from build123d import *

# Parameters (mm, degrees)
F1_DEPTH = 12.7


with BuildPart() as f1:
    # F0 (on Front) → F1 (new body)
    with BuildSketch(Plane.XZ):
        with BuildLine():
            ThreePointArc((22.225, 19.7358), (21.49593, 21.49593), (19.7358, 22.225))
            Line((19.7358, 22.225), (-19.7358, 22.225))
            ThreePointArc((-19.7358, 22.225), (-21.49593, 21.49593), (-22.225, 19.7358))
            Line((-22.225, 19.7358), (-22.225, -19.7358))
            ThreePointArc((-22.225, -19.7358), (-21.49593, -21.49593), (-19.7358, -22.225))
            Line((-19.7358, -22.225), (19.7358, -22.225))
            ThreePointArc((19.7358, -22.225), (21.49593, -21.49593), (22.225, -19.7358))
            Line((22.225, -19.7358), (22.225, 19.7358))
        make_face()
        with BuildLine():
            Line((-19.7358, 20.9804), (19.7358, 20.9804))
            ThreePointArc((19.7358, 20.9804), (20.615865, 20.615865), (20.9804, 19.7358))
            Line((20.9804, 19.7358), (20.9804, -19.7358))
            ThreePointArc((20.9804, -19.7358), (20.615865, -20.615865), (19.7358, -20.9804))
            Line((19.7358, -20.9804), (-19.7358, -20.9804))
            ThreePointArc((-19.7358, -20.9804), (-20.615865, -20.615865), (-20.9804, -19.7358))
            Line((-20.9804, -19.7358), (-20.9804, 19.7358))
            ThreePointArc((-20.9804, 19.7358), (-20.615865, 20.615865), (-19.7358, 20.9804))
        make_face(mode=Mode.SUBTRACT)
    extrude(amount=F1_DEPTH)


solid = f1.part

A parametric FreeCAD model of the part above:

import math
import FreeCAD as App
import Part
import Sketcher
Q = App.Units.Quantity

doc = App.newDocument("Part")
body = doc.addObject("PartDesign::Body", "Body")

# Sketch on XZ plane
sketch1 = body.newObject("Sketcher::SketchObject", "Sketch")
sketch1.AttachmentSupport = (doc.getObject("XZ_Plane"), [""])
sketch1.MapMode = "FlatFace"
sketch1.addGeometry([
    Part.ArcOfCircle(Part.Circle(App.Vector(19.7, 19.7, 0), App.Vector(0, 0, 1), 2.5), math.radians(0), math.radians(90)),  # 0
    Part.LineSegment(App.Vector(19.7, 22.2, 0), App.Vector(-19.7, 22.2, 0)),  # 1
    Part.ArcOfCircle(Part.Circle(App.Vector(-19.7, 19.7, 0), App.Vector(0, 0, 1), 2.5), math.radians(90), math.radians(180)),  # 2
    Part.LineSegment(App.Vector(-22.2, 19.7, 0), App.Vector(-22.2, -19.7, 0)),  # 3
    Part.ArcOfCircle(Part.Circle(App.Vector(-19.7, -19.7, 0), App.Vector(0, 0, 1), 2.5), math.radians(-180), math.radians(-90)),  # 4
    Part.LineSegment(App.Vector(-19.7, -22.2, 0), App.Vector(19.7, -22.2, 0)),  # 5
    Part.ArcOfCircle(Part.Circle(App.Vector(19.7, -19.7, 0), App.Vector(0, 0, 1), 2.5), math.radians(-90), math.radians(0)),  # 6
    Part.LineSegment(App.Vector(22.2, -19.7, 0), App.Vector(22.2, 19.7, 0)),  # 7
    Part.ArcOfCircle(Part.Circle(App.Vector(-19.7, 19.7, 0), App.Vector(0, 0, 1), 1.2), math.radians(90), math.radians(180)),  # 8
    Part.LineSegment(App.Vector(-19.7, 21, 0), App.Vector(19.7, 21, 0)),  # 9
    Part.ArcOfCircle(Part.Circle(App.Vector(19.7, 19.7, 0), App.Vector(0, 0, 1), 1.2), math.radians(0), math.radians(90)),  # 10
    Part.LineSegment(App.Vector(21, 19.7, 0), App.Vector(21, -19.7, 0)),  # 11
    Part.ArcOfCircle(Part.Circle(App.Vector(19.7, -19.7, 0), App.Vector(0, 0, 1), 1.2), math.radians(-90), math.radians(0)),  # 12
    Part.LineSegment(App.Vector(19.7, -21, 0), App.Vector(-19.7, -21, 0)),  # 13
    Part.ArcOfCircle(Part.Circle(App.Vector(-19.7, -19.7, 0), App.Vector(0, 0, 1), 1.2), math.radians(-180), math.radians(-90)),  # 14
    Part.LineSegment(App.Vector(-21, -19.7, 0), App.Vector(-21, 19.7, 0)),  # 15
], False)
sketch1.addConstraint([
    Sketcher.Constraint("Tangent", 0, 2, 1, 1),
    Sketcher.Constraint("Tangent", 1, 2, 2, 1),
    Sketcher.Constraint("Tangent", 2, 2, 3, 1),
    Sketcher.Constraint("Tangent", 3, 2, 4, 1),
    Sketcher.Constraint("Tangent", 4, 2, 5, 1),
    Sketcher.Constraint("Tangent", 5, 2, 6, 1),
    Sketcher.Constraint("Tangent", 6, 2, 7, 1),
    Sketcher.Constraint("Tangent", 7, 2, 0, 1),
    Sketcher.Constraint("Tangent", 8, 1, 9, 1),
    Sketcher.Constraint("Tangent", 9, 2, 10, 2),
    Sketcher.Constraint("Tangent", 10, 1, 11, 1),
    Sketcher.Constraint("Tangent", 11, 2, 12, 2),
    Sketcher.Constraint("Tangent", 12, 1, 13, 1),
    Sketcher.Constraint("Tangent", 13, 2, 14, 2),
    Sketcher.Constraint("Tangent", 14, 1, 15, 1),
    Sketcher.Constraint("Tangent", 15, 2, 8, 2),
    Sketcher.Constraint("Horizontal", 1),
    Sketcher.Constraint("Vertical", 3),
    Sketcher.Constraint("Horizontal", 5),
    Sketcher.Constraint("Vertical", 7),
    Sketcher.Constraint("Horizontal", 9),
    Sketcher.Constraint("Vertical", 11),
    Sketcher.Constraint("Horizontal", 13),
    Sketcher.Constraint("Vertical", 15),
    Sketcher.Constraint("Coincident", 8, 3, 2, 3),
    Sketcher.Constraint("Coincident", 10, 3, 0, 3),
    Sketcher.Constraint("Coincident", 12, 3, 6, 3),
    Sketcher.Constraint("Equal", 0, 2),
    Sketcher.Constraint("Equal", 2, 4),
    Sketcher.Constraint("Equal", 4, 6),
    Sketcher.Constraint("Equal", 12, 14),
    Sketcher.Constraint("Symmetric", 0, 3, 4, 3, -1, 1),
    Sketcher.Constraint("Equal", 13, 3),
    Sketcher.Constraint("Radius", 0, Q("0.098 in")),
    Sketcher.Constraint("Radius", 8, Q("0.049 in")),
    Sketcher.Constraint("DistanceX", 1, 2, 1, 1, Q("1.554 in")),
])
pad1 = body.newObject("PartDesign::Pad", "Pad")
pad1.Profile = sketch1
pad1.Length = Q("0.5 in")

doc.recompute()
